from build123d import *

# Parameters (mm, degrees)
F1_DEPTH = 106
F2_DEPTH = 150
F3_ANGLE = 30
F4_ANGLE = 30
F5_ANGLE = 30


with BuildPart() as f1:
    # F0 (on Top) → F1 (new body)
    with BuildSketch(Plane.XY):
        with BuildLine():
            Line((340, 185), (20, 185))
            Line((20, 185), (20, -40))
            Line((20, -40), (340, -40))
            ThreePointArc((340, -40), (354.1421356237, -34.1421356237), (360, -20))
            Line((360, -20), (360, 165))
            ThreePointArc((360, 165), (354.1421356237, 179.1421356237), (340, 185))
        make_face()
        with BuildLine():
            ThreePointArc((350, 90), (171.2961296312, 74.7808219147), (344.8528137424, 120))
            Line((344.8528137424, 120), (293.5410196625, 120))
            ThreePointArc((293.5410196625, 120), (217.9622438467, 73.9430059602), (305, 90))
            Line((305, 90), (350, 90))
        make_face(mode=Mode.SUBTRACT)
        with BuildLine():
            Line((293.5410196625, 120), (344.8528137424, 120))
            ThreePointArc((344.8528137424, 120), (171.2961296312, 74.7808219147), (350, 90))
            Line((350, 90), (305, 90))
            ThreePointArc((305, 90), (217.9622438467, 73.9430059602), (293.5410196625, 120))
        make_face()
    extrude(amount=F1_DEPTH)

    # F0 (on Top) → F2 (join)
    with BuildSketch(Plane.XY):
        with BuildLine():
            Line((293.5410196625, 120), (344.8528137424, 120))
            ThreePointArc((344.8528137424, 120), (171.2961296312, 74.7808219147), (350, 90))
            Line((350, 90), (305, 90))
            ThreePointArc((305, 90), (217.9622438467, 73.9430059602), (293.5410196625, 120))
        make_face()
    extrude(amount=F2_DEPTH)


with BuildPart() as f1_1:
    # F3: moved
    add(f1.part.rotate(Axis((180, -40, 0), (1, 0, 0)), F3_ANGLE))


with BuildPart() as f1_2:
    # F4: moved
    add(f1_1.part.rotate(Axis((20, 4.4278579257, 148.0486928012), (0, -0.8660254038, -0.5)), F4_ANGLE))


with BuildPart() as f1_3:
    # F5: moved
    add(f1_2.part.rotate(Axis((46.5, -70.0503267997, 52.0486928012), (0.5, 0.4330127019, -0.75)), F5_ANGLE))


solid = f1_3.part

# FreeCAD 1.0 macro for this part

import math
import FreeCAD as App
import Part
import Sketcher
Q = App.Units.Quantity

doc = App.newDocument("Part")
body = doc.addObject("PartDesign::Body", "Body")

# Sketch on XY plane
sketch1 = body.newObject("Sketcher::SketchObject", "Sketch")
sketch1.AttachmentSupport = (doc.getObject("XY_Plane"), [""])
sketch1.MapMode = "FlatFace"
sketch1.addGeometry([
    Part.LineSegment(App.Vector(340, 185, 0), App.Vector(20, 185, 0)),  # 0
    Part.LineSegment(App.Vector(20, 185, 0), App.Vector(20, -40, 0)),  # 1
    Part.LineSegment(App.Vector(20, -40, 0), App.Vector(340, -40, 0)),  # 2
    Part.ArcOfCircle(Part.Circle(App.Vector(340, -20, 0), App.Vector(0, 0, 1), 20), math.radians(-90), math.radians(0)),  # 3
    Part.LineSegment(App.Vector(360, -20, 0), App.Vector(360, 165, 0)),  # 4
    Part.ArcOfCircle(Part.Circle(App.Vector(340, 165, 0), App.Vector(0, 0, 1), 20), math.radians(0), math.radians(90)),  # 5
], False)
sketch1.addConstraint([
    Sketcher.Constraint("Coincident", 0, 2, 1, 1),
    Sketcher.Constraint("Coincident", 1, 2, 2, 1),
    Sketcher.Constraint("Tangent", 2, 2, 3, 1),
    Sketcher.Constraint("Tangent", 3, 2, 4, 1),
    Sketcher.Constraint("Tangent", 4, 2, 5, 1),
    Sketcher.Constraint("Tangent", 5, 2, 0, 1),
    Sketcher.Constraint("Horizontal", 0),
    Sketcher.Constraint("Vertical", 1),
    Sketcher.Constraint("Horizontal", 2),
    Sketcher.Constraint("Vertical", 4),
    Sketcher.Constraint("Equal", 3, 5),
    Sketcher.Constraint("Radius", 3, Q("20 mm")),
    Sketcher.Constraint("DistanceX", 0, 2, 0, 1, Q("320 mm")),
    Sketcher.Constraint("DistanceY", 1, 2, 1, 1, Q("225 mm")),
    Sketcher.Constraint("DistanceX", -1, 1, 3, 3, Q("340 mm")),
    Sketcher.Constraint("DistanceY", 3, 3, -1, 1, Q("20 mm")),
])
pad1 = body.newObject("PartDesign::Pad", "Pad")
pad1.Profile = sketch1
pad1.Length = 106

# Sketch on XY plane
sketch2 = body.newObject("Sketcher::SketchObject", "Sketch001")
sketch2.AttachmentSupport = (doc.getObject("XY_Plane"), [""])
sketch2.MapMode = "FlatFace"
sketch2.addGeometry([
    Part.LineSegment(App.Vector(294, 120, 0), App.Vector(345, 120, 0)),
    Part.ArcOfCircle(Part.Circle(App.Vector(260, 90, 0), App.Vector(0, 0, 1), 90), math.radians(19), math.radians(360)),
    Part.LineSegment(App.Vector(350, 90, 0), App.Vector(305, 90, 0)),
    Part.ArcOfCircle(Part.Circle(App.Vector(260, 90, 0), App.Vector(0, 0, 1), 45), math.radians(42), math.radians(360)),
], False)
sketch2.addConstraint([
    Sketcher.Constraint("Coincident", 0, 2, 1, 1),
    Sketcher.Constraint("Coincident", 1, 2, 2, 1),
    Sketcher.Constraint("Coincident", 2, 2, 3, 2),
    Sketcher.Constraint("Coincident", 3, 1, 0, 1),
    Sketcher.Constraint("Horizontal", 0),
    Sketcher.Constraint("Horizontal", 2),
    Sketcher.Constraint("Coincident", 3, 3, 1, 3),
    Sketcher.Constraint("Horizontal", 3, 3, 1, 2),
    Sketcher.Constraint("Radius", 1, Q("90 mm")),
    Sketcher.Constraint("Radius", 3, Q("45 mm")),
    Sketcher.Constraint("DistanceX", -1, 1, 1, 3, Q("260 mm")),
    Sketcher.Constraint("DistanceY", -1, 1, 1, 3, Q("90 mm")),
    Sketcher.Constraint("DistanceY", -1, 1, 0, 2, Q("120 mm")),
])
pad2 = body.newObject("PartDesign::Pad", "Pad001")
pad2.Profile = sketch2
pad2.Length = 150
body2 = doc.addObject("PartDesign::Body", "Body001")
doc.recompute()

body.Placement = App.Placement(App.Vector(0, -5.358984, 20), App.Rotation(App.Vector(1, 0, 0), 30))
boolean = body2.newObject("PartDesign::Boolean", "Boolean")
boolean.Type = "Fuse"
boolean.addObjects([body])
body3 = doc.addObject("PartDesign::Body", "Body002")
doc.recompute()

body2.Placement = App.Placement(App.Vector(65.679492, -3.4404, 5.958947), App.Rotation(App.Vector(0, -0.866025404, -0.5), 30))
boolean2 = body3.newObject("PartDesign::Boolean", "Boolean001")
boolean2.Type = "Fuse"
boolean2.addObjects([body2])
body4 = doc.addObject("PartDesign::Body", "Body003")
doc.recompute()

body3.Placement = App.Placement(App.Vector(24.319219, 23.740208, 29.919229), App.Rotation(App.Vector(0.5, 0.433012702, -0.75), 30))
boolean3 = body4.newObject("PartDesign::Boolean", "Boolean002")
boolean3.Type = "Fuse"
boolean3.addObjects([body3])

doc.recompute()
